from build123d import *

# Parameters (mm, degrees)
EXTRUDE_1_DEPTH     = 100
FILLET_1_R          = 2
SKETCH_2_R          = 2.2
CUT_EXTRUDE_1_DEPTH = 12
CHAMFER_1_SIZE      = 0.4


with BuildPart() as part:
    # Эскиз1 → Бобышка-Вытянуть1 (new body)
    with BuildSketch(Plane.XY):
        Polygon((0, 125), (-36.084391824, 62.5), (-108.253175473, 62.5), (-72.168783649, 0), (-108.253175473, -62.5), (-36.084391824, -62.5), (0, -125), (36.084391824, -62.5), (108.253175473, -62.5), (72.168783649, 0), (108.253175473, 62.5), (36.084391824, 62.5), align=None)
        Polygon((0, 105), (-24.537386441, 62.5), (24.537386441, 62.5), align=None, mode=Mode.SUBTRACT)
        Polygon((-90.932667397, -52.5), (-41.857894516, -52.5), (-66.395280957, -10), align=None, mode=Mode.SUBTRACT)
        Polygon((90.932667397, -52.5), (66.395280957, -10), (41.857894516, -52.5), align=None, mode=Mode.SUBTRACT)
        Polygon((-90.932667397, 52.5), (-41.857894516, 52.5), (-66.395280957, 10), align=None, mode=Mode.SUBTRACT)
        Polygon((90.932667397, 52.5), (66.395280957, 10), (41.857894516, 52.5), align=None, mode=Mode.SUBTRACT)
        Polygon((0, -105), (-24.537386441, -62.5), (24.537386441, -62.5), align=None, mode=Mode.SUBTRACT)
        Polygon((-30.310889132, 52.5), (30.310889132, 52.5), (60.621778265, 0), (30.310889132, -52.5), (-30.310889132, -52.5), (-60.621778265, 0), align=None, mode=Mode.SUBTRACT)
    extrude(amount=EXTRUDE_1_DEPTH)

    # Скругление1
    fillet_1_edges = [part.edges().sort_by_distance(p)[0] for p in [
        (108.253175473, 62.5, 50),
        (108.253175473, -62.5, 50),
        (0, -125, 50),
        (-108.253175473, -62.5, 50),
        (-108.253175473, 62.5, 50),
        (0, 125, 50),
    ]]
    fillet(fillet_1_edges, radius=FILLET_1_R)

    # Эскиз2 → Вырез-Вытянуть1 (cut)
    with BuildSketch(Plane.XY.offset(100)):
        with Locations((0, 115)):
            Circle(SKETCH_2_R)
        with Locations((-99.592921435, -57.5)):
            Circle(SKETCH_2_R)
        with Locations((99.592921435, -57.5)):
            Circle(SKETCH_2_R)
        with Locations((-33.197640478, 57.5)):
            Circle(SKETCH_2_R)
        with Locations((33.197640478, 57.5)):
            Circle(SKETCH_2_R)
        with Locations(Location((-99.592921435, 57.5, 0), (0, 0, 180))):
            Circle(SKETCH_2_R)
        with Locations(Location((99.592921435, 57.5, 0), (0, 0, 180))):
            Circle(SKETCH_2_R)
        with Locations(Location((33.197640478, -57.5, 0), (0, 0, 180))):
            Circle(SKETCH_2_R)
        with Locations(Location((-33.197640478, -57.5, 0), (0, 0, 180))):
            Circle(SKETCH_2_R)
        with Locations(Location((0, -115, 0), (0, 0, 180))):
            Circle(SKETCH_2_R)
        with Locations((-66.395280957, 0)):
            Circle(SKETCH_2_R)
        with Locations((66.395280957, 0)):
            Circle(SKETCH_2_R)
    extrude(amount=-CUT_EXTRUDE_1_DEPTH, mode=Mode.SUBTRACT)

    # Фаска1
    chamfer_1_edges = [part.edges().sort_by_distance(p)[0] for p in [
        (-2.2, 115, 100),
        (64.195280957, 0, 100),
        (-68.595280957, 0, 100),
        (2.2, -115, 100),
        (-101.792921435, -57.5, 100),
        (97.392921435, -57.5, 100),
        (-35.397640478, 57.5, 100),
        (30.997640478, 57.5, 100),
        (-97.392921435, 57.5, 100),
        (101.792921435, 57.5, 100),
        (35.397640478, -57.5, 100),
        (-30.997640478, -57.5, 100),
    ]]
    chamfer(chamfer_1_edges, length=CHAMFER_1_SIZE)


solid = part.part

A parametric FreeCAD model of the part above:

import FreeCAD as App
import Part
import Sketcher
Q = App.Units.Quantity


def edges_at(feature, points):
    """Names of the edges that pass closest to the given points."""
    edges = feature.Shape.Edges
    near = lambda p: min(range(len(edges)), key=lambda i: edges[i].distToShape(Part.Vertex(*p))[0])
    return sorted({f"Edge{near(p) + 1}" for p in points})

doc = App.newDocument("Part")
body = doc.addObject("PartDesign::Body", "Body")

# Sketch on XY plane
sketch1 = body.newObject("Sketcher::SketchObject", "Sketch")
sketch1.AttachmentSupport = (doc.getObject("XY_Plane"), [""])
sketch1.MapMode = "FlatFace"
sketch1.addGeometry(Part.LineSegment(App.Vector(0, 125, 0), App.Vector(-36, 62, 0)), False)
sketch1.addGeometry(Part.LineSegment(App.Vector(-36, 62, 0), App.Vector(-108, 62, 0)), False)
sketch1.addGeometry(Part.LineSegment(App.Vector(-108, 62, 0), App.Vector(-72, 0, 0)), False)
sketch1.addGeometry(Part.LineSegment(App.Vector(-72, 0, 0), App.Vector(-108, -62, 0)), False)
sketch1.addGeometry(Part.LineSegment(App.Vector(-108, -62, 0), App.Vector(-36, -62, 0)), False)
sketch1.addGeometry(Part.LineSegment(App.Vector(-36, -62, 0), App.Vector(0, -125, 0)), False)
sketch1.addGeometry(Part.LineSegment(App.Vector(0, -125, 0), App.Vector(36, -62, 0)), False)
sketch1.addGeometry(Part.LineSegment(App.Vector(36, -62, 0), App.Vector(108, -62, 0)), False)
sketch1.addGeometry(Part.LineSegment(App.Vector(108, -62, 0), App.Vector(72, 0, 0)), False)
sketch1.addGeometry(Part.LineSegment(App.Vector(72, 0, 0), App.Vector(108, 62, 0)), False)
sketch1.addGeometry(Part.LineSegment(App.Vector(108, 62, 0), App.Vector(36, 62, 0)), False)
sketch1.addGeometry(Part.LineSegment(App.Vector(36, 62, 0), App.Vector(0, 125, 0)), False)
sketch1.addGeometry(Part.LineSegment(App.Vector(-42, -52, 0), App.Vector(-91, -52, 0)), False)
sketch1.addGeometry(Part.LineSegment(App.Vector(-91, -52, 0), App.Vector(-66, -10, 0)), False)
sketch1.addGeometry(Part.LineSegment(App.Vector(-66, -10, 0), App.Vector(-42, -52, 0)), False)
sketch1.addGeometry(Part.LineSegment(App.Vector(25, -62, 0), App.Vector(0, -105, 0)), False)
sketch1.addGeometry(Part.LineSegment(App.Vector(0, -105, 0), App.Vector(-25, -62, 0)), False)
sketch1.addGeometry(Part.LineSegment(App.Vector(-25, -62, 0), App.Vector(25, -62, 0)), False)
sketch1.addGeometry(Part.LineSegment(App.Vector(66, -10, 0), App.Vector(91, -52, 0)), False)
sketch1.addGeometry(Part.LineSegment(App.Vector(91, -52, 0), App.Vector(42, -52, 0)), False)
sketch1.addGeometry(Part.LineSegment(App.Vector(42, -52, 0), App.Vector(66, -10, 0)), False)
sketch1.addGeometry(Part.LineSegment(App.Vector(-66, 10, 0), App.Vector(-91, 52, 0)), False)
sketch1.addGeometry(Part.LineSegment(App.Vector(-91, 52, 0), App.Vector(-42, 52, 0)), False)
sketch1.addGeometry(Part.LineSegment(App.Vector(-42, 52, 0), App.Vector(-66, 10, 0)), False)
sketch1.addGeometry(Part.LineSegment(App.Vector(-61, 0, 0), App.Vector(-30, 52, 0)), False)
sketch1.addGeometry(Part.LineSegment(App.Vector(-30, 52, 0), App.Vector(30, 52, 0)), False)
sketch1.addGeometry(Part.LineSegment(App.Vector(30, 52, 0), App.Vector(61, 0, 0)), False)
sketch1.addGeometry(Part.LineSegment(App.Vector(61, 0, 0), App.Vector(30, -52, 0)), False)
sketch1.addGeometry(Part.LineSegment(App.Vector(30, -52, 0), App.Vector(-30, -52, 0)), False)
sketch1.addGeometry(Part.LineSegment(App.Vector(-30, -52, 0), App.Vector(-61, 0, 0)), False)
sketch1.addGeometry(Part.LineSegment(App.Vector(42, 52, 0), App.Vector(91, 52, 0)), False)
sketch1.addGeometry(Part.LineSegment(App.Vector(91, 52, 0), App.Vector(66, 10, 0)), False)
sketch1.addGeometry(Part.LineSegment(App.Vector(66, 10, 0), App.Vector(42, 52, 0)), False)
sketch1.addGeometry(Part.LineSegment(App.Vector(-25, 62, 0), App.Vector(0, 105, 0)), False)
sketch1.addGeometry(Part.LineSegment(App.Vector(0, 105, 0), App.Vector(25, 62, 0)), False)
sketch1.addGeometry(Part.LineSegment(App.Vector(25, 62, 0), App.Vector(-25, 62, 0)), False)
sketch1.addConstraint(Sketcher.Constraint("Coincident", 0, 2, 1, 1))
sketch1.addConstraint(Sketcher.Constraint("Coincident", 1, 2, 2, 1))
sketch1.addConstraint(Sketcher.Constraint("Coincident", 2, 2, 3, 1))
sketch1.addConstraint(Sketcher.Constraint("Coincident", 3, 2, 4, 1))
sketch1.addConstraint(Sketcher.Constraint("Coincident", 4, 2, 5, 1))
sketch1.addConstraint(Sketcher.Constraint("Coincident", 5, 2, 6, 1))
sketch1.addConstraint(Sketcher.Constraint("Coincident", 6, 2, 7, 1))
sketch1.addConstraint(Sketcher.Constraint("Coincident", 7, 2, 8, 1))
sketch1.addConstraint(Sketcher.Constraint("Coincident", 8, 2, 9, 1))
sketch1.addConstraint(Sketcher.Constraint("Coincident", 9, 2, 10, 1))
sketch1.addConstraint(Sketcher.Constraint("Coincident", 10, 2, 11, 1))
sketch1.addConstraint(Sketcher.Constraint("Coincident", 11, 2, 0, 1))
sketch1.addConstraint(Sketcher.Constraint("Coincident", 12, 2, 13, 1))
sketch1.addConstraint(Sketcher.Constraint("Coincident", 13, 2, 14, 1))
sketch1.addConstraint(Sketcher.Constraint("Coincident", 14, 2, 12, 1))
sketch1.addConstraint(Sketcher.Constraint("Coincident", 15, 2, 16, 1))
sketch1.addConstraint(Sketcher.Constraint("Coincident", 16, 2, 17, 1))
sketch1.addConstraint(Sketcher.Constraint("Coincident", 17, 2, 15, 1))
sketch1.addConstraint(Sketcher.Constraint("Coincident", 18, 2, 19, 1))
sketch1.addConstraint(Sketcher.Constraint("Coincident", 19, 2, 20, 1))
sketch1.addConstraint(Sketcher.Constraint("Coincident", 20, 2, 18, 1))
sketch1.addConstraint(Sketcher.Constraint("Coincident", 21, 2, 22, 1))
sketch1.addConstraint(Sketcher.Constraint("Coincident", 22, 2, 23, 1))
sketch1.addConstraint(Sketcher.Constraint("Coincident", 23, 2, 21, 1))
sketch1.addConstraint(Sketcher.Constraint("Coincident", 24, 2, 25, 1))
sketch1.addConstraint(Sketcher.Constraint("Coincident", 25, 2, 26, 1))
sketch1.addConstraint(Sketcher.Constraint("Coincident", 26, 2, 27, 1))
sketch1.addConstraint(Sketcher.Constraint("Coincident", 27, 2, 28, 1))
sketch1.addConstraint(Sketcher.Constraint("Coincident", 28, 2, 29, 1))
sketch1.addConstraint(Sketcher.Constraint("Coincident", 29, 2, 24, 1))
sketch1.addConstraint(Sketcher.Constraint("Coincident", 30, 2, 31, 1))
sketch1.addConstraint(Sketcher.Constraint("Coincident", 31, 2, 32, 1))
sketch1.addConstraint(Sketcher.Constraint("Coincident", 32, 2, 30, 1))
sketch1.addConstraint(Sketcher.Constraint("Coincident", 33, 2, 34, 1))
sketch1.addConstraint(Sketcher.Constraint("Coincident", 34, 2, 35, 1))
sketch1.addConstraint(Sketcher.Constraint("Coincident", 35, 2, 33, 1))
sketch1.addConstraint(Sketcher.Constraint("Horizontal", 1))
sketch1.addConstraint(Sketcher.Constraint("Horizontal", 4))
sketch1.addConstraint(Sketcher.Constraint("Horizontal", 7))
sketch1.addConstraint(Sketcher.Constraint("Horizontal", 10))
sketch1.addConstraint(Sketcher.Constraint("Horizontal", 12))
sketch1.addConstraint(Sketcher.Constraint("Horizontal", 17))
sketch1.addConstraint(Sketcher.Constraint("Horizontal", 19))
sketch1.addConstraint(Sketcher.Constraint("Horizontal", 22))
sketch1.addConstraint(Sketcher.Constraint("Horizontal", 25))
sketch1.addConstraint(Sketcher.Constraint("Horizontal", 28))
sketch1.addConstraint(Sketcher.Constraint("Horizontal", 30))
sketch1.addConstraint(Sketcher.Constraint("Horizontal", 35))
sketch1.addConstraint(Sketcher.Constraint("Symmetric", 0, 2, 6, 2, -1, 1))
sketch1.addConstraint(Sketcher.Constraint("Symmetric", 2, 2, 8, 2, -1, 1))
sketch1.addConstraint(Sketcher.Constraint("Symmetric", 3, 2, 9, 2, -1, 1))
sketch1.addConstraint(Sketcher.Constraint("Symmetric", 5, 2, 11, 2, -1, 1))
sketch1.addConstraint(Sketcher.Constraint("Symmetric", 18, 2, 21, 2, -1, 1))
sketch1.addConstraint(Sketcher.Constraint("Symmetric", 20, 2, 23, 2, -1, 1))
sketch1.addConstraint(Sketcher.Constraint("Symmetric", 24, 2, 27, 2, -1, 1))
sketch1.addConstraint(Sketcher.Constraint("Symmetric", 26, 2, 29, 2, -1, 1))
sketch1.addConstraint(Sketcher.Constraint("Symmetric", 12, 2, 30, 2, -1, 1))
sketch1.addConstraint(Sketcher.Constraint("Symmetric", 13, 2, 31, 2, -1, 1))
sketch1.addConstraint(Sketcher.Constraint("Symmetric", 15, 2, 33, 2, -1, 1))
sketch1.addConstraint(Sketcher.Constraint("Symmetric", 16, 2, 34, 2, -1, 1))
sketch1.addConstraint(Sketcher.Constraint("Symmetric", 4, 2, 6, 2, -2))
sketch1.addConstraint(Sketcher.Constraint("Symmetric", 12, 2, 18, 2, -2))
sketch1.addConstraint(Sketcher.Constraint("Symmetric", 13, 2, 20, 2, -2))
sketch1.addConstraint(Sketcher.Constraint("PointOnObject", 2, 2, -1))
sketch1.addConstraint(Sketcher.Constraint("PointOnObject", 5, 2, -2))
sketch1.addConstraint(Sketcher.Constraint("PointOnObject", 15, 2, -2))
sketch1.addConstraint(Sketcher.Constraint("PointOnObject", 26, 2, -1))
sketch1.addConstraint(Sketcher.Constraint("Parallel", 0, 3))
sketch1.addConstraint(Sketcher.Constraint("Parallel", 2, 5))
sketch1.addConstraint(Sketcher.Constraint("Parallel", 5, 8))
sketch1.addConstraint(Sketcher.Constraint("Parallel", 8, 11))
sketch1.addConstraint(Sketcher.Constraint("Parallel", 9, 13))
sketch1.addConstraint(Sketcher.Constraint("Parallel", 11, 14))
sketch1.addConstraint(Sketcher.Constraint("Parallel", 13, 15))
sketch1.addConstraint(Sketcher.Constraint("Parallel", 14, 16))
sketch1.addConstraint(Sketcher.Constraint("Parallel", 15, 20))
sketch1.addConstraint(Sketcher.Constraint("Parallel", 20, 23))
sketch1.addConstraint(Sketcher.Constraint("Parallel", 23, 24))
sketch1.addConstraint(Sketcher.Constraint("Parallel", 21, 26))
sketch1.addConstraint(Sketcher.Constraint("Parallel", 26, 29))
sketch1.addConstraint(Sketcher.Constraint("Parallel", 29, 32))
sketch1.addConstraint(Sketcher.Constraint("Parallel", 31, 33))
sketch1.addConstraint(Sketcher.Constraint("Horizontal", 7, 2, 16, 2))
sketch1.addConstraint(Sketcher.Constraint("Horizontal", 22, 2, 24, 2))
sketch1.addConstraint(Sketcher.Constraint("Equal", 12, 17))
sketch1.addConstraint(Sketcher.Constraint("Equal", 0, 2))
sketch1.addConstraint(Sketcher.Constraint("Angle", 0, Q("-120 deg")))
sketch1.addConstraint(Sketcher.Constraint("DistanceY", 5, 2, -1, 1, Q("125 mm")))
sketch1.addConstraint(Sketcher.Constraint("DistanceY", 13, 2, -1, 1, Q("10 mm")))
sketch1.addConstraint(Sketcher.Constraint("DistanceY", 15, 2, -1, 1, Q("105 mm")))
sketch1.addConstraint(Sketcher.Constraint("DistanceX", 25, 1, 25, 2, Q("60.621778 mm")))
sketch1.addConstraint(Sketcher.Constraint("DistanceX", 1, 2, 1, 1, Q("72.168784 mm")))
sketch1.addConstraint(Sketcher.Constraint("DistanceX", 13, 2, -1, 1, Q("66.395281 mm")))
pad1 = body.newObject("PartDesign::Pad", "Pad")
pad1.Profile = sketch1
pad1.Length = 100
doc.recompute()

fillet = body.newObject("PartDesign::Fillet", "Fillet")
fillet.Base = (pad1, edges_at(pad1, [
    (108.253, 62.5, 50),
    (108.253, -62.5, 50),
    (0, -125, 50),
    (-108.253, -62.5, 50),
    (-108.253, 62.5, 50),
    (0, 125, 50),
]))
fillet.Radius = 2

# Sketch on XY plane
sketch2 = body.newObject("Sketcher::SketchObject", "Sketch001")
sketch2.AttachmentSupport = (doc.getObject("XY_Plane"), [""])
sketch2.MapMode = "FlatFace"
sketch2.AttachmentOffset = App.Placement(App.Vector(0, 0, 100), App.Rotation())
sketch2.addGeometry(Part.Circle(App.Vector(0, 115, 0), App.Vector(0, 0, 1), 2.2), False)
sketch2.addGeometry(Part.Circle(App.Vector(-99.6, -57.5, 0), App.Vector(0, 0, 1), 2.2), False)
sketch2.addGeometry(Part.Circle(App.Vector(99.6, -57.5, 0), App.Vector(0, 0, 1), 2.2), False)
sketch2.addGeometry(Part.Circle(App.Vector(-33.2, 57.5, 0), App.Vector(0, 0, 1), 2.2), False)
sketch2.addGeometry(Part.Circle(App.Vector(33.2, 57.5, 0), App.Vector(0, 0, 1), 2.2), False)
sketch2.addGeometry(Part.Circle(App.Vector(-99.6, 57.5, 0), App.Vector(0, 0, 1), 2.2), False)
sketch2.addGeometry(Part.Circle(App.Vector(99.6, 57.5, 0), App.Vector(0, 0, 1), 2.2), False)
sketch2.addGeometry(Part.Circle(App.Vector(33.2, -57.5, 0), App.Vector(0, 0, 1), 2.2), False)
sketch2.addGeometry(Part.Circle(App.Vector(-33.2, -57.5, 0), App.Vector(0, 0, 1), 2.2), False)
sketch2.addGeometry(Part.Circle(App.Vector(0, -115, 0), App.Vector(0, 0, 1), 2.2), False)
sketch2.addGeometry(Part.Circle(App.Vector(-66.4, 0, 0), App.Vector(0, 0, 1), 2.2), False)
sketch2.addGeometry(Part.Circle(App.Vector(66.4, 0, 0), App.Vector(0, 0, 1), 2.2), False)
sketch2.addConstraint(Sketcher.Constraint("Equal", 0, 1))
sketch2.addConstraint(Sketcher.Constraint("Equal", 1, 2))
sketch2.addConstraint(Sketcher.Constraint("Equal", 2, 3))
sketch2.addConstraint(Sketcher.Constraint("Equal", 3, 4))
sketch2.addConstraint(Sketcher.Constraint("Equal", 4, 5))
sketch2.addConstraint(Sketcher.Constraint("Equal", 5, 6))
sketch2.addConstraint(Sketcher.Constraint("Equal", 6, 7))
sketch2.addConstraint(Sketcher.Constraint("Equal", 7, 8))
sketch2.addConstraint(Sketcher.Constraint("Equal", 8, 9))
sketch2.addConstraint(Sketcher.Constraint("Equal", 9, 10))
sketch2.addConstraint(Sketcher.Constraint("Equal", 10, 11))
sketch2.addConstraint(Sketcher.Constraint("Symmetric", 2, 3, 5, 3, -1, 1))
sketch2.addConstraint(Sketcher.Constraint("Symmetric", 1, 3, 6, 3, -1, 1))
sketch2.addConstraint(Sketcher.Constraint("Symmetric", 3, 3, 7, 3, -1, 1))
sketch2.addConstraint(Sketcher.Constraint("Symmetric", 4, 3, 8, 3, -1, 1))
sketch2.addConstraint(Sketcher.Constraint("Symmetric", 0, 3, 9, 3, -1, 1))
sketch2.addConstraint(Sketcher.Constraint("Symmetric", 10, 3, 11, 3, -1, 1))
sketch2.addConstraint(Sketcher.Constraint("Symmetric", 1, 3, 2, 3, -2))
sketch2.addConstraint(Sketcher.Constraint("Symmetric", 3, 3, 4, 3, -2))
sketch2.addConstraint(Sketcher.Constraint("PointOnObject", 0, 3, -2))
sketch2.addConstraint(Sketcher.Constraint("PointOnObject", 10, 3, -1))
sketch2.addConstraint(Sketcher.Constraint("Horizontal", 4, 3, 5, 3))
sketch2.addConstraint(Sketcher.Constraint("Diameter", 0, Q("4.4 mm")))
sketch2.addConstraint(Sketcher.Constraint("DistanceY", -1, 1, 0, 3, Q("115 mm")))
sketch2.addConstraint(Sketcher.Constraint("DistanceY", 1, 3, 3, 3, Q("115 mm")))
sketch2.addConstraint(Sketcher.Constraint("DistanceX", 1, 3, -1, 1, Q("99.592921 mm")))
sketch2.addConstraint(Sketcher.Constraint("DistanceX", 3, 3, -1, 1, Q("33.19764 mm")))
sketch2.addConstraint(Sketcher.Constraint("DistanceX", 10, 3, -1, 1, Q("66.395281 mm")))
pocket1 = body.newObject("PartDesign::Pocket", "Pocket")
pocket1.Profile = sketch2
pocket1.Length = 12
doc.recompute()

chamfer = body.newObject("PartDesign::Chamfer", "Chamfer")
chamfer.Base = (pocket1, edges_at(pocket1, [
    (-2.2, 115, 100),
    (64.195, 0, 100),
    (-68.595, 0, 100),
    (2.2, -115, 100),
    (-101.793, -57.5, 100),
    (97.393, -57.5, 100),
    (-35.398, 57.5, 100),
    (30.998, 57.5, 100),
    (-97.393, 57.5, 100),
    (101.793, 57.5, 100),
    (35.398, -57.5, 100),
    (-30.998, -57.5, 100),
]))
chamfer.Size = 0.4

doc.recompute()
